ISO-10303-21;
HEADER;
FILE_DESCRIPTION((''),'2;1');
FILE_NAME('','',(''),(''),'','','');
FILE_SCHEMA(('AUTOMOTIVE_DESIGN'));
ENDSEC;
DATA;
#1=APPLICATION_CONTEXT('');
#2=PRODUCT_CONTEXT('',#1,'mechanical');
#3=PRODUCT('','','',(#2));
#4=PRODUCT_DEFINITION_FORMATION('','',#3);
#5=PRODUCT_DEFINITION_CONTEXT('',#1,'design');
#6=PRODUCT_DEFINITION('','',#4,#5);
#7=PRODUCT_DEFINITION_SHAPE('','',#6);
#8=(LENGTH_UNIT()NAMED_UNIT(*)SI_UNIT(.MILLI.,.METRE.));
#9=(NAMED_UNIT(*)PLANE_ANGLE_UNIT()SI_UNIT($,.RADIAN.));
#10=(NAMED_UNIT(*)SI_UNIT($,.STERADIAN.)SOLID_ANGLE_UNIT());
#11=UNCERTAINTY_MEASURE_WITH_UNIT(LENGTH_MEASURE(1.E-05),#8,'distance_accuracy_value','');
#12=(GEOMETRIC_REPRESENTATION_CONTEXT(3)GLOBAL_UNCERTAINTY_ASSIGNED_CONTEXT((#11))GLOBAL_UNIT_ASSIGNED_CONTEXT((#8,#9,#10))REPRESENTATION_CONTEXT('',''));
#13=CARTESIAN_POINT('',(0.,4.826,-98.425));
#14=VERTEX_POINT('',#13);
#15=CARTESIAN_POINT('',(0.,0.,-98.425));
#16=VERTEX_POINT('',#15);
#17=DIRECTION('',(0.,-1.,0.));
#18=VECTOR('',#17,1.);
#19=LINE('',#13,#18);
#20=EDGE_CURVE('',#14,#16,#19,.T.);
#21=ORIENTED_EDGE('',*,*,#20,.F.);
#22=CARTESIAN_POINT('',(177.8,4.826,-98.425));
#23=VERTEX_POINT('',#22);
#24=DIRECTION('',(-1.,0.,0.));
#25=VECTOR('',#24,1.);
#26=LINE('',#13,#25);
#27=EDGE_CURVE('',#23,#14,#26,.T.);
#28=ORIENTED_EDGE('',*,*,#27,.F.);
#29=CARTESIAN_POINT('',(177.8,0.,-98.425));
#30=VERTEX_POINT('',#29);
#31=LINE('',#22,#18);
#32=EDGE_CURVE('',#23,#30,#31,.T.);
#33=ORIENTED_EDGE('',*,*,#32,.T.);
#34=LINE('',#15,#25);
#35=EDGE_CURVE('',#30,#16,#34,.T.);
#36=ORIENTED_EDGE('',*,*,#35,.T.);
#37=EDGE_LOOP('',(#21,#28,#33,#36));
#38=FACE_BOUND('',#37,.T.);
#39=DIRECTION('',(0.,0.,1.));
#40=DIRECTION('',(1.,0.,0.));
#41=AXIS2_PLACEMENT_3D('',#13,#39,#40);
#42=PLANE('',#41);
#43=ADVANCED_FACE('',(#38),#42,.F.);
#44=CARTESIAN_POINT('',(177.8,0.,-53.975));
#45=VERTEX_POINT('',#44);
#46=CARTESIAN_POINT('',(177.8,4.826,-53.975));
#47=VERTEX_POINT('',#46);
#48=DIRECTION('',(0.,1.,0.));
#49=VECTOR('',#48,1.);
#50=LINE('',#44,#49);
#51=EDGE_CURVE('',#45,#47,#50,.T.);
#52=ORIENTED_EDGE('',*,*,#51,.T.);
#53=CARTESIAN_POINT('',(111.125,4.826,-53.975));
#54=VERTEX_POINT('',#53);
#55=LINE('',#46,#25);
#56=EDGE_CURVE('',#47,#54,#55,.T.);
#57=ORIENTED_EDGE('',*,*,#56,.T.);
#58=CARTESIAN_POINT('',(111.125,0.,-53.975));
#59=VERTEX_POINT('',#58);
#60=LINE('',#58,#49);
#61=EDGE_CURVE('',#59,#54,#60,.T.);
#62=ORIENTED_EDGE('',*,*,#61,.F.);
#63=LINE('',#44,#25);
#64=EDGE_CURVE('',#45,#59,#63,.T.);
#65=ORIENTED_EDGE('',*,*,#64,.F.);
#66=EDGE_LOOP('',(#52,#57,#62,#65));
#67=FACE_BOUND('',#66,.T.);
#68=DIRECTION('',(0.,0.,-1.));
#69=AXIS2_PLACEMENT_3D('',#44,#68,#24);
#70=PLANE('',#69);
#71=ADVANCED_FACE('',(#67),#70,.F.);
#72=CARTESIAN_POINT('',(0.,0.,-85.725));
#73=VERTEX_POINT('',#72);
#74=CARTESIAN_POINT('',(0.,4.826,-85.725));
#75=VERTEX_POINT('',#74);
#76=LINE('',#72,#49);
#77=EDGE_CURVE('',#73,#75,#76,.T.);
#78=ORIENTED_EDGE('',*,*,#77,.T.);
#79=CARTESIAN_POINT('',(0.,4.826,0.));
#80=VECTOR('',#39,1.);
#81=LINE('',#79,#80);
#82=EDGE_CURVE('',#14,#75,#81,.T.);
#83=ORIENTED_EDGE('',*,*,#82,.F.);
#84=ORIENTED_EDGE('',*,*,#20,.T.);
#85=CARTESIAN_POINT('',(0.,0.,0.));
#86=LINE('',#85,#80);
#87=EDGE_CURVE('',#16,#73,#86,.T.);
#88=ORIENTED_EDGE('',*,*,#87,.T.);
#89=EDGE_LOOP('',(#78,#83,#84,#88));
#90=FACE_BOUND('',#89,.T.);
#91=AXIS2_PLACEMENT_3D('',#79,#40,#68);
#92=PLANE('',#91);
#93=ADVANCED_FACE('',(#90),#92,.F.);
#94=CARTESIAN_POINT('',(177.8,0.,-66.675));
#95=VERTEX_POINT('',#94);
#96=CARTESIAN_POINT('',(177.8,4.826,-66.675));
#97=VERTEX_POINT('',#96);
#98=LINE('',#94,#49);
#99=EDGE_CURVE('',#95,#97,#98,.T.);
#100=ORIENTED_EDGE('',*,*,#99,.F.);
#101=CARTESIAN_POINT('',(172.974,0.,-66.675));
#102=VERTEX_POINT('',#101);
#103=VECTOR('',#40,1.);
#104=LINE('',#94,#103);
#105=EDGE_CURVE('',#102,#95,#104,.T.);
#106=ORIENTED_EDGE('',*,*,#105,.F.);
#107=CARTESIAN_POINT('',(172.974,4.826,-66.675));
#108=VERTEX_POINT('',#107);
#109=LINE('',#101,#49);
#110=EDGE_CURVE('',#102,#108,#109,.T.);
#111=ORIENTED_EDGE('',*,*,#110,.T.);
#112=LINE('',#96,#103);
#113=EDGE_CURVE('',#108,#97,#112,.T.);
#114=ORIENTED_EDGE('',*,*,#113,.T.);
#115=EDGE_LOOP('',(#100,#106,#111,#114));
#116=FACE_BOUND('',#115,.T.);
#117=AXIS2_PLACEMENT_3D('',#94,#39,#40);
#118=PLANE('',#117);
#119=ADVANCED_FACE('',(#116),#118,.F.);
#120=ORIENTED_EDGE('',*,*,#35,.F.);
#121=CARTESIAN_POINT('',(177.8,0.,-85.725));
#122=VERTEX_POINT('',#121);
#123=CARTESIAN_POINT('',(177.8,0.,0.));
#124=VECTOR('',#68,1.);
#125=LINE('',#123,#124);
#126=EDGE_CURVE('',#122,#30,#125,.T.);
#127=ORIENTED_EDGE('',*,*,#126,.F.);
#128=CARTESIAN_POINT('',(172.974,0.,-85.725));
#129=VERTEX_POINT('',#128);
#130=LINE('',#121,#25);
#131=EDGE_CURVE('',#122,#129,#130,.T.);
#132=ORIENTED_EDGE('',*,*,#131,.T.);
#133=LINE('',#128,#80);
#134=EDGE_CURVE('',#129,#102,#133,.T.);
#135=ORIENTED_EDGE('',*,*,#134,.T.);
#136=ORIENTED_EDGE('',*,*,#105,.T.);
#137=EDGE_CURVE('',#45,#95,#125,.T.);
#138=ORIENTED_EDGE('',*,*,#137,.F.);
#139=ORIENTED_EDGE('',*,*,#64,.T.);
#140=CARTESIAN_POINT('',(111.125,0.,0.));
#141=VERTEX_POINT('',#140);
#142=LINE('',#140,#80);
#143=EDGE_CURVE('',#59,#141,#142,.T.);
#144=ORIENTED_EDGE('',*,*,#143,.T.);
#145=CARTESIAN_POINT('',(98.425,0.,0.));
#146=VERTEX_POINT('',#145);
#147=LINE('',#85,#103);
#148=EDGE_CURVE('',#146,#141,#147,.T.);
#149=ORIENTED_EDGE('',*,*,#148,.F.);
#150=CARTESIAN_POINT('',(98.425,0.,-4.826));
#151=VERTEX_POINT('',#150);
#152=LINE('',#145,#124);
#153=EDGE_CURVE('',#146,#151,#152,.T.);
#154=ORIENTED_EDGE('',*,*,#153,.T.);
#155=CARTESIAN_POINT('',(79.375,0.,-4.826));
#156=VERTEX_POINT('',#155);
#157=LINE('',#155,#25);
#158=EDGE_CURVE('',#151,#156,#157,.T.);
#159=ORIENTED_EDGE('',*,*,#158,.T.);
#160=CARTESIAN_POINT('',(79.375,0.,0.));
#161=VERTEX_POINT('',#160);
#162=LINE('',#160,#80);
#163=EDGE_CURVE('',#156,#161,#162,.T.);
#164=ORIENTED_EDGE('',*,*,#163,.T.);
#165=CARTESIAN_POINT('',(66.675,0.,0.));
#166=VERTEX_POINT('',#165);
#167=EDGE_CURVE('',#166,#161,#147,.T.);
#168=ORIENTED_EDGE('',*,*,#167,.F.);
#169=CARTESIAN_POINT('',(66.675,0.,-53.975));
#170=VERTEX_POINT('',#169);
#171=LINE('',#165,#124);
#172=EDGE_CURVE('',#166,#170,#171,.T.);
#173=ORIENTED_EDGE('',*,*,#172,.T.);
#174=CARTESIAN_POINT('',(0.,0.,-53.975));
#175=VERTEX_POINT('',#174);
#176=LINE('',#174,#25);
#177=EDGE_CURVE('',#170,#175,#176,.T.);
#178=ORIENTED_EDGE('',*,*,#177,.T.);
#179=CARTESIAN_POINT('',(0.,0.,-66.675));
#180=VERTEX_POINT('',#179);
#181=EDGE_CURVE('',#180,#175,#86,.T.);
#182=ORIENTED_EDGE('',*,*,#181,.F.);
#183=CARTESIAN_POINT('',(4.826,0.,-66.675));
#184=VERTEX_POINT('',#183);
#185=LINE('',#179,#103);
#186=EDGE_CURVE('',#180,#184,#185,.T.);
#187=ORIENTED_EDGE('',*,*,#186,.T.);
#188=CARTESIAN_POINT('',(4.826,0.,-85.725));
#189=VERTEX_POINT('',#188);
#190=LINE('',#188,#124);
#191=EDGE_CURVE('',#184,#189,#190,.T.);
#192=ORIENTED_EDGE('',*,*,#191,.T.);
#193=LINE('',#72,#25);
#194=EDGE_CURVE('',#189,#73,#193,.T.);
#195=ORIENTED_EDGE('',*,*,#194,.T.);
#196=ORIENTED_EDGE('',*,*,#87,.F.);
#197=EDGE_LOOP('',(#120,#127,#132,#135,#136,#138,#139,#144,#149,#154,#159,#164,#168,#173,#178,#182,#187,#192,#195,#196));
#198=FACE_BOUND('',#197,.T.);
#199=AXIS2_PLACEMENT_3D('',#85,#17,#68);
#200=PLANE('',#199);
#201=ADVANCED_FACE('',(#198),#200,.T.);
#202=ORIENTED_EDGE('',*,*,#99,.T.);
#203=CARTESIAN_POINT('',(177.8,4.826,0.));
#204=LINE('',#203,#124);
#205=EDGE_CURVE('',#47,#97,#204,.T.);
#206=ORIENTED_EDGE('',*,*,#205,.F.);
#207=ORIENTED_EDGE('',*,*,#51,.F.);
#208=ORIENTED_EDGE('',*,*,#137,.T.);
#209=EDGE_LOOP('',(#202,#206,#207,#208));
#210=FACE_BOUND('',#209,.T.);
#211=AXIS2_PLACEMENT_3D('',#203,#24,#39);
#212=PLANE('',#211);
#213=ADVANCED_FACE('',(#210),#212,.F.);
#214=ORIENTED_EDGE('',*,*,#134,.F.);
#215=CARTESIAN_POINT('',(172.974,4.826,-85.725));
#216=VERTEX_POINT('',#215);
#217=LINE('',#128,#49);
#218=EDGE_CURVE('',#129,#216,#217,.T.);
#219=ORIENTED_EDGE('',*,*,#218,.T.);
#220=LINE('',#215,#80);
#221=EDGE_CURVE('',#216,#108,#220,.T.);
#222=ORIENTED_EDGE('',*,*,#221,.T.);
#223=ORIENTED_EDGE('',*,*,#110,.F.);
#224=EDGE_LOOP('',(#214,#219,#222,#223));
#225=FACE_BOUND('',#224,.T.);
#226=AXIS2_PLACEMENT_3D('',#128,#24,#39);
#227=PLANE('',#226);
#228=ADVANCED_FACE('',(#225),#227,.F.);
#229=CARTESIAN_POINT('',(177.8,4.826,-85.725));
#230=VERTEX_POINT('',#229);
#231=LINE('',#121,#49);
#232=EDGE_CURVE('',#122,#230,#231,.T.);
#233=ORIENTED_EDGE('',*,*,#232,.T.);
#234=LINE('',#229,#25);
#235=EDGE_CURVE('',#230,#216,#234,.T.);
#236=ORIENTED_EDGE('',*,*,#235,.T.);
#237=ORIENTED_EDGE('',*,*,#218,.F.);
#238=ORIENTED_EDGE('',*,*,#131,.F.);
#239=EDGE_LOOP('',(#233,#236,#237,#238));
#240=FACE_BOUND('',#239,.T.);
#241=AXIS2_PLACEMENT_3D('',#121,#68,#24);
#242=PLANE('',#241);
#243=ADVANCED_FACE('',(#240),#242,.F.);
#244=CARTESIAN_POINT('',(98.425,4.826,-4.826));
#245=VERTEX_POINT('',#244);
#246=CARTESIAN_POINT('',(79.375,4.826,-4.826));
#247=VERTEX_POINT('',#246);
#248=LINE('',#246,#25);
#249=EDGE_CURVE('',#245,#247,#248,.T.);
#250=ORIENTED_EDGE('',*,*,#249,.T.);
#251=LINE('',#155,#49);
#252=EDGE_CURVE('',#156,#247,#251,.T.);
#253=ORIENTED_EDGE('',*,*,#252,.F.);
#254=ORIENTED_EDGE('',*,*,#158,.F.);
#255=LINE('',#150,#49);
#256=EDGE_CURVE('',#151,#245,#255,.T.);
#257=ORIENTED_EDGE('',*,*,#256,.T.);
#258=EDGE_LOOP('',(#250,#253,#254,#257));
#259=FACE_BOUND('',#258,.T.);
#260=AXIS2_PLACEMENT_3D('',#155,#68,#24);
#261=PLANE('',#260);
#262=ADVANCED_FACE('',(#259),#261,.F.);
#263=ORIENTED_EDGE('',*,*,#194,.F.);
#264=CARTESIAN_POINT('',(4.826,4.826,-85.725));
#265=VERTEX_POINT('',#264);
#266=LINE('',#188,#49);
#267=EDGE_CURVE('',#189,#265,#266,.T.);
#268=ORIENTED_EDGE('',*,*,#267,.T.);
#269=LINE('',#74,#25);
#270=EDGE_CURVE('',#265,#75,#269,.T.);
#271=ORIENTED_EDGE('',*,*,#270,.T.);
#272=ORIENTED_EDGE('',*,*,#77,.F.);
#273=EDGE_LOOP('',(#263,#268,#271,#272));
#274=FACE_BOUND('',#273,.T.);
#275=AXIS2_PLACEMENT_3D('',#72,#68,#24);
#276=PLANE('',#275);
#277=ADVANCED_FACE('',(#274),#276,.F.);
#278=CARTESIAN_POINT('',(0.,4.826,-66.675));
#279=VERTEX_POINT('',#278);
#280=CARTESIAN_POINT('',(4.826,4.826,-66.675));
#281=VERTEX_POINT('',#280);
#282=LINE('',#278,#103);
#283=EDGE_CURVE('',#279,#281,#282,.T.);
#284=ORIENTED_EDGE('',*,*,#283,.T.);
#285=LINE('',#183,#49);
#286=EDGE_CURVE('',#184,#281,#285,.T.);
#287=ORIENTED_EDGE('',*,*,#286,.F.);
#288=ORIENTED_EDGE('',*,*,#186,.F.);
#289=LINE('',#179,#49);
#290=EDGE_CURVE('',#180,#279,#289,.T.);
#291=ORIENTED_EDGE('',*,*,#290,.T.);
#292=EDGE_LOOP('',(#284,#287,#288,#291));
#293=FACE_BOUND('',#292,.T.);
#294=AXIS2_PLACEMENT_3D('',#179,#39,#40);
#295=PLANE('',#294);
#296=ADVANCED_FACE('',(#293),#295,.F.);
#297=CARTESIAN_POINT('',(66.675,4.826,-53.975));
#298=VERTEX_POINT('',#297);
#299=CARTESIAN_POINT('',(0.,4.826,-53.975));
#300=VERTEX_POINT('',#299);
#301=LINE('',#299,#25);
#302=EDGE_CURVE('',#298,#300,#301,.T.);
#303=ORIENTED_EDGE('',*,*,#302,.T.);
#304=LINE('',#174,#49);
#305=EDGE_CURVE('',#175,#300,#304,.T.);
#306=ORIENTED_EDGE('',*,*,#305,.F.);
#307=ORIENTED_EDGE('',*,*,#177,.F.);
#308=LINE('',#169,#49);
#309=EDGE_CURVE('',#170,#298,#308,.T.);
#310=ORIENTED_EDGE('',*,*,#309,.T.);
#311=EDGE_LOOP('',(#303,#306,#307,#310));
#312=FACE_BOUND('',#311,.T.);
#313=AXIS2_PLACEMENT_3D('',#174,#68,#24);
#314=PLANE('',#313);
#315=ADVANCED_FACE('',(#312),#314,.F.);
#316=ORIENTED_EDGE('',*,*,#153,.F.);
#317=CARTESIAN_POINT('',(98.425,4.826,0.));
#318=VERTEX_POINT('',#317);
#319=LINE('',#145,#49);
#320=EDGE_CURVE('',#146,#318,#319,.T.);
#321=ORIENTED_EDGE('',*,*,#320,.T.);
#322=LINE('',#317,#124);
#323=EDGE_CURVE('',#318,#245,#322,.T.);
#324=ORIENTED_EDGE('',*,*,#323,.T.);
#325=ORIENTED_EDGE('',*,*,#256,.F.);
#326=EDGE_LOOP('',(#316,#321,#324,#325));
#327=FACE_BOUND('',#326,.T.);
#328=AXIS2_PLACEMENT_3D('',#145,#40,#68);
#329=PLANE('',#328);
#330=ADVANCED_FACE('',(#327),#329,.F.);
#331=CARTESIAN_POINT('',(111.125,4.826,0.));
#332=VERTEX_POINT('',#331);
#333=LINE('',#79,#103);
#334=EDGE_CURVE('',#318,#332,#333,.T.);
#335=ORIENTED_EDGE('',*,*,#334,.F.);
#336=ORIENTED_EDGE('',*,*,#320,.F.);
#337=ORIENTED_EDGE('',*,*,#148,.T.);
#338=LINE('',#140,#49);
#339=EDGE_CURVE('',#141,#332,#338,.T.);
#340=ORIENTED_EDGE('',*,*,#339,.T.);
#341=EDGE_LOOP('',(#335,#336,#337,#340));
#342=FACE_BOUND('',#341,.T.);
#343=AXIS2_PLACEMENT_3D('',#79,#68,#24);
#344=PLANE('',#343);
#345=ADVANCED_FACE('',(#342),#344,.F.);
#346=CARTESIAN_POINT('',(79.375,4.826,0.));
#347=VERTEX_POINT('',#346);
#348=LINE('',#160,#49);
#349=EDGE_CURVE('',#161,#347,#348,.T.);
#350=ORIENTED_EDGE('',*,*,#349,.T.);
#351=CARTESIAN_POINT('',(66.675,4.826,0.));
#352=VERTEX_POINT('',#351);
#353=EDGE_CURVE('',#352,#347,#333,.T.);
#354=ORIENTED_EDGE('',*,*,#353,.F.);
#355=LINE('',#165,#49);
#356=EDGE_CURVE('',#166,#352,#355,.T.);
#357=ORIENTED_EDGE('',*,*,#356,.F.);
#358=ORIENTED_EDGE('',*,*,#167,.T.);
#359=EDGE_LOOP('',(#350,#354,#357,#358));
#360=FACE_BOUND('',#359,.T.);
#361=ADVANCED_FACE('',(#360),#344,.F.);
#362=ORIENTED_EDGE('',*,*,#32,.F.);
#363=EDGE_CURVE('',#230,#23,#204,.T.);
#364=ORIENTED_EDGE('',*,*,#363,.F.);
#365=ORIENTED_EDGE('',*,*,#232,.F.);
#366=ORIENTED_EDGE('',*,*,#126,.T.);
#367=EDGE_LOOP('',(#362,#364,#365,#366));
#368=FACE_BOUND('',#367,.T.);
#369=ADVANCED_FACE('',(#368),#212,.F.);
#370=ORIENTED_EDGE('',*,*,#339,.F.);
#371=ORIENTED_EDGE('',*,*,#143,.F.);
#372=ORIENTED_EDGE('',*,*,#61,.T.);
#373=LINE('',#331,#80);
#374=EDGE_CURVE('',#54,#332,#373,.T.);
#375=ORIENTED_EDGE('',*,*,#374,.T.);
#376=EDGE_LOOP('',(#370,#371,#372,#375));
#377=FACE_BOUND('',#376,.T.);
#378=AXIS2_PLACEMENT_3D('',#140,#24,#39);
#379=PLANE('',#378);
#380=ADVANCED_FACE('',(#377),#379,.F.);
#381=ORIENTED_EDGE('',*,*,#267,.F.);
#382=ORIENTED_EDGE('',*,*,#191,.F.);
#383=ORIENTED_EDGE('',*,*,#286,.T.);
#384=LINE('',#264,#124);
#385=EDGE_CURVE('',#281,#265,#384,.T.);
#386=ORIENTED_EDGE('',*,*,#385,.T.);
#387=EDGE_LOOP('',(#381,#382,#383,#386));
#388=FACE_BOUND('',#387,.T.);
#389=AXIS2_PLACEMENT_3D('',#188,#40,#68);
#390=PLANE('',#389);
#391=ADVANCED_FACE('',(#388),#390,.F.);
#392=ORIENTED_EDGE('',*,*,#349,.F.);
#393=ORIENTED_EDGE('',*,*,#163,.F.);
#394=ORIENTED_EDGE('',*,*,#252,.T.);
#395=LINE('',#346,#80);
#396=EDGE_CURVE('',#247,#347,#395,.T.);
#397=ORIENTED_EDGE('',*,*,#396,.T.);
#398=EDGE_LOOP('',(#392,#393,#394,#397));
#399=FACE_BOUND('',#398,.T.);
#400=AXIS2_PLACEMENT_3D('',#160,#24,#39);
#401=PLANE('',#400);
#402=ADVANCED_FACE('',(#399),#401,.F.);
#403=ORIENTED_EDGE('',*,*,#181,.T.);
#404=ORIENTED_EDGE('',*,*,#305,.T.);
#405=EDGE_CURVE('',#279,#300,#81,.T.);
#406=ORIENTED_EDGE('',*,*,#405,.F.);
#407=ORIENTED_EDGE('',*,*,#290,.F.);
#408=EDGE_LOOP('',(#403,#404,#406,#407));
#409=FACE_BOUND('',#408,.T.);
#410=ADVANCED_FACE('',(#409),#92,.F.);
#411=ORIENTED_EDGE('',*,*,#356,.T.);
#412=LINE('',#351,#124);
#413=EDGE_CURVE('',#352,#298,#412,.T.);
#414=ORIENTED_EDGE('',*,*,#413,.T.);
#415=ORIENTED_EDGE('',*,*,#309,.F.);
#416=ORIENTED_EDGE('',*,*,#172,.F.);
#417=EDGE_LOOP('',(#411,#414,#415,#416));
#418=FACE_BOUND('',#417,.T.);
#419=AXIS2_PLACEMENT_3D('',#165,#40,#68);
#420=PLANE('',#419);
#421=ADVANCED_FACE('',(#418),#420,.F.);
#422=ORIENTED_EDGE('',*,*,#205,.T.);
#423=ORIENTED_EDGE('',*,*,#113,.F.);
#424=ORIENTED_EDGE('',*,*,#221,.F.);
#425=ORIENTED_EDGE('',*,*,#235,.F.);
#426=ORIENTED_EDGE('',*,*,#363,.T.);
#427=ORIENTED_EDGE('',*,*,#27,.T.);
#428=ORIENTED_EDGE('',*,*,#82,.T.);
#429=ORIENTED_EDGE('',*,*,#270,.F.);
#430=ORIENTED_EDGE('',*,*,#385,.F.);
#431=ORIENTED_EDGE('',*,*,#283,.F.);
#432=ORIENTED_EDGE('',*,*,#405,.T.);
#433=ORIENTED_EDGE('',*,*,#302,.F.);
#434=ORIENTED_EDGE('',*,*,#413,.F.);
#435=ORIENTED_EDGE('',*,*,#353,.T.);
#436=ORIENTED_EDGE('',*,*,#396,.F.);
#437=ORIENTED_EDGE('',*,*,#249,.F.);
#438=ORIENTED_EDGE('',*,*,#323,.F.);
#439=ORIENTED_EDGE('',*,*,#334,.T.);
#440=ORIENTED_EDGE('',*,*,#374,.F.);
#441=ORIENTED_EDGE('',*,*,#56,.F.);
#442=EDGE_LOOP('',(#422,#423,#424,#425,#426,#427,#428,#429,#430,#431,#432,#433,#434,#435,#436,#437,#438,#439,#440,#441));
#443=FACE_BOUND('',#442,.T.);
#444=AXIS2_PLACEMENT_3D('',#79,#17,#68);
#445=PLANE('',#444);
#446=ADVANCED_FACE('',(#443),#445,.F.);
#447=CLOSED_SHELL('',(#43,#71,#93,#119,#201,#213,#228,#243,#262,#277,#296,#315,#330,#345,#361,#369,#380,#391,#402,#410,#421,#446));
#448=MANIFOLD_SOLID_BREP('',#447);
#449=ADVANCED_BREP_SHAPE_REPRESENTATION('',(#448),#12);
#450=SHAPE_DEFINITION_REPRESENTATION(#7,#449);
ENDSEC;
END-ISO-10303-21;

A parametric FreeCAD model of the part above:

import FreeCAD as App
import Part
import Sketcher
Q = App.Units.Quantity


def add_polygon(sketch, points):
    """Adds a closed chain of lines whose ends are joined by coincident constraints."""
    first, n = sketch.GeometryCount, len(points)
    for a, b in zip(points, points[1:] + points[:1]):
        sketch.addGeometry(Part.LineSegment(App.Vector(*a, 0), App.Vector(*b, 0)), False)
    for i in range(n):
        sketch.addConstraint(Sketcher.Constraint("Coincident", first + i, 2, first + (i + 1) % n, 1))

doc = App.newDocument("Part")
params = doc.addObject("Spreadsheet::Sheet", "Params")
for row, (alias, value) in enumerate([
    ("sketch1_width", "7 in"),
    ("sketch1_height", "3.875 in"),
    ("pad1_length", "0.19 in"),
    ("sketch2_width", "0.19 in"),
    ("sketch2_width2", "0.75 in"),
    ("sketch3_width", "2.625 in"),
    ("sketch3_height", "2.125 in"),
], start=1):
    params.set(f"A{row}", alias)
    params.set(f"B{row}", "=" + value)
    params.setAlias(f"B{row}", alias)

body = doc.addObject("PartDesign::Body", "Body")

sketch1 = body.newObject("Sketcher::SketchObject", "Sketch")
sketch1.AttachmentSupport = (doc.getObject("XZ_Plane"), [""])
sketch1.MapMode = "FlatFace"
add_polygon(sketch1, [(0, -98), (0, 0), (178, 0), (178, -98)])
sketch1.addConstraint([
    Sketcher.Constraint("Vertical", 0),
    Sketcher.Constraint("Horizontal", 1),
    Sketcher.Constraint("Vertical", 2),
    Sketcher.Constraint("Horizontal", 3),
    Sketcher.Constraint("Coincident", 0, 2, -1, 1),
    Sketcher.Constraint("DistanceX", 1, 1, 1, 2, Q("7 in")),
    Sketcher.Constraint("DistanceY", 0, 1, 0, 2, Q("3.875 in")),
])
sketch1.setExpression("Constraints[9]", "Params.sketch1_width")
sketch1.setExpression("Constraints[10]", "Params.sketch1_height")
pad1 = body.newObject("PartDesign::Pad", "Pad")
pad1.Profile = sketch1
pad1.setExpression("Length", "Params.pad1_length")
pad1.Reversed = True

sketch2 = body.newObject("Sketcher::SketchObject", "Sketch001")
sketch2.AttachmentSupport = (doc.getObject("XZ_Plane"), [""])
sketch2.MapMode = "FlatFace"
sketch2.AttachmentOffset = App.Placement(App.Vector(0, 0, -0.19 * 25.4), App.Rotation())
add_polygon(sketch2, [(0, -85.7), (0, -66.7), (4.8, -66.7), (4.8, -85.7)])
add_polygon(sketch2, [(173, -85.7), (173, -66.7), (177.8, -66.7), (177.8, -85.7)])
add_polygon(sketch2, [(79.4, -4.8), (79.4, 0), (98.4, 0), (98.4, -4.8)])
sketch2.addConstraint([
    Sketcher.Constraint("Vertical", 0),
    Sketcher.Constraint("Horizontal", 1),
    Sketcher.Constraint("Vertical", 2),
    Sketcher.Constraint("Horizontal", 3),
    Sketcher.Constraint("Vertical", 4),
    Sketcher.Constraint("Horizontal", 5),
    Sketcher.Constraint("Vertical", 6),
    Sketcher.Constraint("Horizontal", 7),
    Sketcher.Constraint("Vertical", 8),
    Sketcher.Constraint("Horizontal", 9),
    Sketcher.Constraint("Vertical", 10),
    Sketcher.Constraint("Horizontal", 11),
    Sketcher.Constraint("PointOnObject", 0, 2, -2),
    Sketcher.Constraint("PointOnObject", 8, 2, -1),
    Sketcher.Constraint("Horizontal", 1, 2, 4, 2),
    Sketcher.Constraint("Horizontal", 3, 2, 6, 2),
    Sketcher.Constraint("Equal", 3, 5),
    Sketcher.Constraint("Equal", 11, 0),
    Sketcher.Constraint("Equal", 7, 8),
    Sketcher.Constraint("DistanceX", -1, 1, 5, 2, Q("7 in")),
    Sketcher.Constraint("DistanceX", 1, 1, 1, 2, Q("0.19 in")),
    Sketcher.Constraint("DistanceX", 9, 1, 9, 2, Q("0.75 in")),
    Sketcher.Constraint("DistanceY", 0, 2, -1, 1, Q("2.625 in")),
    Sketcher.Constraint("DistanceX", -1, 1, 8, 2, Q("3.125 in")),
])
sketch2.setExpression("Constraints[32]", "Params.sketch2_width")
sketch2.setExpression("Constraints[33]", "Params.sketch2_width2")
pocket1 = body.newObject("PartDesign::Pocket", "Pocket")
pocket1.Profile = sketch2
pocket1.Type = "ThroughAll"
pocket1.Reversed = True

sketch3 = body.newObject("Sketcher::SketchObject", "Sketch002")
sketch3.AttachmentSupport = (doc.getObject("XZ_Plane"), [""])
sketch3.MapMode = "FlatFace"
sketch3.AttachmentOffset = App.Placement(App.Vector(0, 0, -0.19 * 25.4), App.Rotation())
add_polygon(sketch3, [(0, -54), (0, 0), (67, 0), (67, -54)])
add_polygon(sketch3, [(111, -54), (111, 0), (178, 0), (178, -54)])
sketch3.addConstraint([
    Sketcher.Constraint("Vertical", 0),
    Sketcher.Constraint("Horizontal", 1),
    Sketcher.Constraint("Vertical", 2),
    Sketcher.Constraint("Horizontal", 3),
    Sketcher.Constraint("Vertical", 4),
    Sketcher.Constraint("Horizontal", 5),
    Sketcher.Constraint("Vertical", 6),
    Sketcher.Constraint("Horizontal", 7),
    Sketcher.Constraint("Coincident", 0, 2, -1, 1),
    Sketcher.Constraint("PointOnObject", 4, 2, -1),
    Sketcher.Constraint("Horizontal", 3, 2, 6, 2),
    Sketcher.Constraint("Equal", 3, 5),
    Sketcher.Constraint("DistanceX", -1, 1, 5, 2, Q("7 in")),
    Sketcher.Constraint("DistanceX", 1, 1, 1, 2, Q("2.625 in")),
    Sketcher.Constraint("DistanceY", 0, 1, 0, 2, Q("2.125 in")),
])
sketch3.setExpression("Constraints[21]", "Params.sketch3_width")
sketch3.setExpression("Constraints[22]", "Params.sketch3_height")
pocket2 = body.newObject("PartDesign::Pocket", "Pocket001")
pocket2.Profile = sketch3
pocket2.Type = "ThroughAll"
pocket2.Reversed = True

doc.recompute()
